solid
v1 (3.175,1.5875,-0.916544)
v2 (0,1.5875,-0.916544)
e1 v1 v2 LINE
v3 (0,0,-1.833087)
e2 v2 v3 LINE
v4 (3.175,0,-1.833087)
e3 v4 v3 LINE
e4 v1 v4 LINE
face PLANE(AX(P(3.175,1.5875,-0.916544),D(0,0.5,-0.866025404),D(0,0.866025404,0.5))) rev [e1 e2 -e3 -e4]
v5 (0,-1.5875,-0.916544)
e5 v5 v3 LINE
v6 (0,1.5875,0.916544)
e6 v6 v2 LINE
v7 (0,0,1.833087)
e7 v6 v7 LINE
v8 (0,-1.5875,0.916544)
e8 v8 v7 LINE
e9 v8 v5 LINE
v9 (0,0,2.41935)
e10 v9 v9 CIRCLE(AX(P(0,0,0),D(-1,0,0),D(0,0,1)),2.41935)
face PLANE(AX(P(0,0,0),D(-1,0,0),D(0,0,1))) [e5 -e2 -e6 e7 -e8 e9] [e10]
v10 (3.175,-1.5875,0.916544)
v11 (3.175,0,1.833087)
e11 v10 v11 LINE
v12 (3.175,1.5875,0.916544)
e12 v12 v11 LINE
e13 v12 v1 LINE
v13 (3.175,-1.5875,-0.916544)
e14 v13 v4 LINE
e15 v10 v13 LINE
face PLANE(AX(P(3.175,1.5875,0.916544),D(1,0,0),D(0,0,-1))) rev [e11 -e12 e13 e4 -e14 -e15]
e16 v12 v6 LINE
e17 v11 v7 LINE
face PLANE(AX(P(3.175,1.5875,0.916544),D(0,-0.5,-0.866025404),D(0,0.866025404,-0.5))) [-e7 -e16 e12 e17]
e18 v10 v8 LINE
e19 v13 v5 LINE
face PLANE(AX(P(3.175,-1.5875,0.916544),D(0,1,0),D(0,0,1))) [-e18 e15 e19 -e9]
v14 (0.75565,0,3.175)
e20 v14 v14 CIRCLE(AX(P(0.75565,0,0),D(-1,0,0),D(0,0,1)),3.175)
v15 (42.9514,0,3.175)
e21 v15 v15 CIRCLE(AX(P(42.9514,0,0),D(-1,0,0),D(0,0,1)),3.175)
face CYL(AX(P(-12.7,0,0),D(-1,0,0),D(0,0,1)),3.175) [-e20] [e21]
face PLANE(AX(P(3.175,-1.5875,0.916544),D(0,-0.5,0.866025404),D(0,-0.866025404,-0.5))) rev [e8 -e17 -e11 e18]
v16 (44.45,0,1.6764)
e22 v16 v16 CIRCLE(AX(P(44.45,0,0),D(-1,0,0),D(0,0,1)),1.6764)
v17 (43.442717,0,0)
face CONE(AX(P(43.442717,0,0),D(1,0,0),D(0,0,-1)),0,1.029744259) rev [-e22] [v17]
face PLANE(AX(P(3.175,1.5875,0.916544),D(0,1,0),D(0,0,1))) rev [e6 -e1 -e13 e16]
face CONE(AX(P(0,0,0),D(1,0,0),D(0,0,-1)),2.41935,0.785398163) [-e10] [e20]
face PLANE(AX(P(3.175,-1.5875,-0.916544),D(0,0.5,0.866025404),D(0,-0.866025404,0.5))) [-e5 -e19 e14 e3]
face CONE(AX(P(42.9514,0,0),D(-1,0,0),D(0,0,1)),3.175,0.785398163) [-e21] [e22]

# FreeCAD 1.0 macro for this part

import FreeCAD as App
import Part
import Sketcher
from FreeCAD import Vector
Q = App.Units.Quantity


def add_polygon(sketch, points):
    """Adds a closed chain of lines whose ends are joined by coincident constraints."""
    first, n = sketch.GeometryCount, len(points)
    for a, b in zip(points, points[1:] + points[:1]):
        sketch.addGeometry(Part.LineSegment(App.Vector(*a, 0), App.Vector(*b, 0)), False)
    for i in range(n):
        sketch.addConstraint(Sketcher.Constraint("Coincident", first + i, 2, first + (i + 1) % n, 1))

doc = App.newDocument("Part")
body = doc.addObject("PartDesign::Body", "Body")

sketch1 = body.newObject("Sketcher::SketchObject", "Sketch")
sketch1.AttachmentSupport = (doc.getObject("XY_Plane"), [""])
sketch1.MapMode = "FlatFace"
add_polygon(sketch1, [(0, 2.4), (0, 0), (43.4, 0), (44.5, 1.7), (43, 3.2), (0.8, 3.2)])
sketch1.addConstraint([
    Sketcher.Constraint("Vertical", 0),
    Sketcher.Constraint("Horizontal", 1),
    Sketcher.Constraint("Horizontal", 4),
    Sketcher.Constraint("Coincident", 0, 2, -1, 1),
    Sketcher.Constraint("Perpendicular", 3, 5),
    Sketcher.Constraint("Angle", 2, Q("59 deg")),
    Sketcher.Constraint("Angle", 3, Q("135 deg")),
    Sketcher.Constraint("DistanceX", -1, 1, 2, 2, Q("1.75 in")),
    Sketcher.Constraint("DistanceY", -1, 1, 2, 2, Q("0.066 in")),
    Sketcher.Constraint("DistanceX", -1, 1, 3, 2, Q("1.691 in")),
    Sketcher.Constraint("DistanceX", 4, 2, 4, 1, Q("42.19575 mm")),
])
revolution = body.newObject("PartDesign::Revolution", "Revolution")
revolution.Profile = sketch1
revolution.ReferenceAxis = (sketch1, ["H_Axis"])
revolution.Angle = 360

sketch2 = body.newObject("Sketcher::SketchObject", "Sketch001")
sketch2.AttachmentSupport = (doc.getObject("YZ_Plane"), [""])
sketch2.MapMode = "FlatFace"
add_polygon(sketch2, [(1.6, 0.9), (1.6, -0.9), (0, -1.8), (-1.6, -0.9), (-1.6, 0.9), (0, 1.8)])
sketch2.addConstraint([
    Sketcher.Constraint("Vertical", 0),
    Sketcher.Constraint("Vertical", 3),
    Sketcher.Constraint("Symmetric", 0, 2, 3, 2, -1, 1),
    Sketcher.Constraint("Symmetric", 1, 2, 4, 2, -1, 1),
    Sketcher.Constraint("PointOnObject", 1, 2, -2),
    Sketcher.Constraint("Parallel", 2, 5),
    Sketcher.Constraint("Horizontal", 0, 2, 2, 2),
    Sketcher.Constraint("Angle", 1, Q("-150 deg")),
    Sketcher.Constraint("DistanceX", -1, 1, 0, 2, Q("0.0625 in")),
    Sketcher.Constraint("DistanceY", 0, 2, 0, 1, Q("1.833087 mm")),
])
pocket1 = body.newObject("PartDesign::Pocket", "Pocket")
pocket1.Profile = sketch2
pocket1.Length = Q("0.125 in")
pocket1.Reversed = True

doc.recompute()
